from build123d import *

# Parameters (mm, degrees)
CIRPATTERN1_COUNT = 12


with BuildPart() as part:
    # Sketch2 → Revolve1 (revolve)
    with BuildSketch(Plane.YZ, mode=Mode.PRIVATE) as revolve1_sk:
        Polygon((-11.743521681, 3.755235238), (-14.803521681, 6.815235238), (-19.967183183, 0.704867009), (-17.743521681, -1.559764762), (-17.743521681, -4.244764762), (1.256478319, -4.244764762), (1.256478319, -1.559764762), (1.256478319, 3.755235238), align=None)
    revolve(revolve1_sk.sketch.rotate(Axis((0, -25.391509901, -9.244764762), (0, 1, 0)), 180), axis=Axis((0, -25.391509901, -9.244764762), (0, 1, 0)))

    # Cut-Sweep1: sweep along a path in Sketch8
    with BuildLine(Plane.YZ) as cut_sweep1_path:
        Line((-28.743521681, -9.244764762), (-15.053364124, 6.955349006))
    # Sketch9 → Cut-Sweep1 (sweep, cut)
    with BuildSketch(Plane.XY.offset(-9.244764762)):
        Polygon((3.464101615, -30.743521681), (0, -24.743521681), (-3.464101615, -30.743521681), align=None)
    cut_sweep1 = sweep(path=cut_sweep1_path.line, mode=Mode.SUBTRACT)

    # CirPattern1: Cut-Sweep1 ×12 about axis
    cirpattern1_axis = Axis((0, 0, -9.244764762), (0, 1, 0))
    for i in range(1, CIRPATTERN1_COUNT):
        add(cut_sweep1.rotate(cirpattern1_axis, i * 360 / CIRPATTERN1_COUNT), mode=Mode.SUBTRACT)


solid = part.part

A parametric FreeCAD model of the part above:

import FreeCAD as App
import Part
import Sketcher
from FreeCAD import Vector
Q = App.Units.Quantity


def add_polygon(sketch, points):
    """Adds a closed chain of lines whose ends are joined by coincident constraints."""
    first, n = sketch.GeometryCount, len(points)
    for a, b in zip(points, points[1:] + points[:1]):
        sketch.addGeometry(Part.LineSegment(App.Vector(*a, 0), App.Vector(*b, 0)), False)
    for i in range(n):
        sketch.addConstraint(Sketcher.Constraint("Coincident", first + i, 2, first + (i + 1) % n, 1))

doc = App.newDocument("Part")
params = doc.addObject("Spreadsheet::Sheet", "Params")
for row, (alias, value) in enumerate([
    ("sketch1_width", "19 mm"),
    ("sketch1_width2", "13 mm"),
    ("sketch1_height", "8 mm"),
    ("sketch1_length", "8 mm"),
    ("revolution_angle", "360 deg"),
    ("sketch3_width", "21.21 mm"),
], start=1):
    params.set(f"A{row}", alias)
    params.set(f"B{row}", "=" + value)
    params.setAlias(f"B{row}", alias)

body = doc.addObject("PartDesign::Body", "Body")

# Sketch on YZ plane
sketch1 = doc.addObject("Sketcher::SketchObject", "Sketch")
body.addObject(sketch1)
sketch1.AttachmentSupport = (doc.YZ_Plane, [""])
sketch1.MapMode = "FlatFace"
add_polygon(sketch1, [(-11.7, 3.8), (-14.8, 6.8), (-20, 0.7), (-17.7, -1.6), (-17.7, -4.2), (1.3, -4.2), (1.3, 3.8)])  # lines 0-6
sketch1.addGeometry(Part.LineSegment(Vector(-20, -9.2, 0), Vector(1.3, -9.2, 0)), True)  # axis
sketch1.addConstraint([
    Sketcher.Constraint("Vertical", 3),
    Sketcher.Constraint("Horizontal", 4),
    Sketcher.Constraint("Vertical", 5),
    Sketcher.Constraint("Horizontal", 6),
    Sketcher.Constraint("Horizontal", 7),
    Sketcher.Constraint("Vertical", 1, 2, 7, 1),
    Sketcher.Constraint("Vertical", 5, 2, 7, 2),
    Sketcher.Constraint("DistanceX", 4, 1, 4, 2, Q("19 mm")),
    Sketcher.Constraint("DistanceX", 6, 2, 6, 1, Q("13 mm")),
    Sketcher.Constraint("DistanceY", 5, 1, 5, 2, Q("8 mm")),
    Sketcher.Constraint("Angle", 0, Q("135 deg")),
    Sketcher.Constraint("Distance", 1, Q("8 mm")),
    Sketcher.Constraint("Angle", 1, Q("-130.2 deg")),
    Sketcher.Constraint("DistanceY", 7, 1, 3, 2, Q("5 mm")),
    Sketcher.Constraint("DistanceY", 3, 2, 3, 1, Q("2.685 mm")),
    Sketcher.Constraint("DistanceX", 2, 2, 0, 2, Q("2.94 mm")),
    Sketcher.Constraint("DistanceX", 0, 2, -1, 1, Q("14.803522 mm")),
    Sketcher.Constraint("DistanceY", -1, 1, 0, 2, Q("6.815235 mm")),
])
sketch1.setExpression("Constraints[14]", "Params.sketch1_width")
sketch1.setExpression("Constraints[15]", "Params.sketch1_width2")
sketch1.setExpression("Constraints[16]", "Params.sketch1_height")
sketch1.setExpression("Constraints[18]", "Params.sketch1_length")
revolution = doc.addObject("PartDesign::Revolution", "Revolution")
body.addObject(revolution)
revolution.Profile = sketch1
revolution.ReferenceAxis = (sketch1, ["Axis0"])
revolution.setExpression("Angle", "Params.revolution_angle")

# Sketch on XY plane
sketch2 = doc.addObject("Sketcher::SketchObject", "Sketch001")
body.addObject(sketch2)
sketch2.AttachmentSupport = (doc.XY_Plane, [""])
sketch2.MapMode = "FlatFace"
sketch2.AttachmentOffset = App.Placement(Vector(0, 0, -9.244765), App.Rotation())
add_polygon(sketch2, [(3, -31), (0, -25), (-3, -31)])  # lines 0-2
sketch2.addConstraint([
    Sketcher.Constraint("Horizontal", 2),
    Sketcher.Constraint("PointOnObject", 0, 2, -2),
    Sketcher.Constraint("Equal", 0, 1),
    Sketcher.Constraint("Angle", 0, Q("120 deg")),
    Sketcher.Constraint("DistanceY", 1, 2, 0, 2, Q("6 mm")),
    Sketcher.Constraint("DistanceY", 0, 2, -1, 1, Q("24.743522 mm")),
])

# Sketch on an angled plane
sketch3 = doc.addObject("Sketcher::SketchObject", "Sketch002")
body.addObject(sketch3)
sketch3.Placement = App.Placement(Vector(0, -12.210871, 10.318986), App.Rotation(Vector(0, -0.645457688, -0.763796029), Vector(1.000000001, 0, 0), Vector(0, -0.763796029, 0.645457688), "ZXY"))
sketch3.addGeometry(Part.LineSegment(Vector(26, 0, 0), Vector(4, 0, 0)), False)
sketch3.addConstraint([
    Sketcher.Constraint("Horizontal", 0),
    Sketcher.Constraint("PointOnObject", 0, 1, -1),
    Sketcher.Constraint("DistanceX", 0, 2, 0, 1, Q("21.21 mm")),
    Sketcher.Constraint("DistanceX", -1, 1, 0, 1, Q("25.613842 mm")),
])
sketch3.setExpression("Constraints[2]", "Params.sketch3_width")
doc.recompute()

subtractivepipe = doc.addObject("PartDesign::SubtractivePipe", "SubtractivePipe")
body.addObject(subtractivepipe)
subtractivepipe.Profile = sketch2
subtractivepipe.Spine = (sketch3, ["Edge1"])
doc.recompute()

datumline = doc.addObject("PartDesign::Line", "DatumLine")
body.addObject(datumline)
datumline.Placement = App.Placement(Vector(0, 0, -9.244765), App.Rotation(Vector(0, 0, 1), Vector(0, 1, 0)))
polarpattern = doc.addObject("PartDesign::PolarPattern", "PolarPattern")
body.addObject(polarpattern)
polarpattern.Originals = [subtractivepipe]
polarpattern.Axis = (datumline, [""])
polarpattern.Angle = 360
polarpattern.Occurrences = 12
body.Tip = polarpattern

doc.recompute()
